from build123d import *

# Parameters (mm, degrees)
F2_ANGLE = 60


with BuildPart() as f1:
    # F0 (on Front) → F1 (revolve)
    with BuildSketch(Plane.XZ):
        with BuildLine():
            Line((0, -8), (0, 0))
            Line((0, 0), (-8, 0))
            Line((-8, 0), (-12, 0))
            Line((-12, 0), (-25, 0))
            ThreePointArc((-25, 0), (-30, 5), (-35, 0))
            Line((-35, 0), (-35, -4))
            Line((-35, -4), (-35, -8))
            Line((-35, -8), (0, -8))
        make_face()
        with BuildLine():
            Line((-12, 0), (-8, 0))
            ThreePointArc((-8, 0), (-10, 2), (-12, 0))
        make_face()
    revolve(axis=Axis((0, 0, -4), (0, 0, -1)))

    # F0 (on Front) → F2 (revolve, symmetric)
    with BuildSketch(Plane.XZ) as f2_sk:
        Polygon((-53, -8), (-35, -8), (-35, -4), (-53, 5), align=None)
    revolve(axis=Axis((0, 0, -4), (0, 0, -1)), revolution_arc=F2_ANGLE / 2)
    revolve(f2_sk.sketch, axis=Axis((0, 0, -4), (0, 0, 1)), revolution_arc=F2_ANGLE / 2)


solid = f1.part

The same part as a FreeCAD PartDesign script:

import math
import FreeCAD as App
import Part
import Sketcher
Q = App.Units.Quantity


def add_polygon(sketch, points):
    """Adds a closed chain of lines whose ends are joined by coincident constraints."""
    first, n = sketch.GeometryCount, len(points)
    for a, b in zip(points, points[1:] + points[:1]):
        sketch.addGeometry(Part.LineSegment(App.Vector(*a, 0), App.Vector(*b, 0)), False)
    for i in range(n):
        sketch.addConstraint(Sketcher.Constraint("Coincident", first + i, 2, first + (i + 1) % n, 1))

doc = App.newDocument("Part")
body = doc.addObject("PartDesign::Body", "Body")

# Sketch on XZ plane
sketch1 = doc.addObject("Sketcher::SketchObject", "Sketch")
body.addObject(sketch1)
sketch1.AttachmentSupport = (doc.XZ_Plane, [""])
sketch1.MapMode = "FlatFace"
sketch1.addGeometry(Part.LineSegment(App.Vector(0, -8, 0), App.Vector(0, 0, 0)), False)
sketch1.addGeometry(Part.LineSegment(App.Vector(0, 0, 0), App.Vector(-8, 0, 0)), False)
sketch1.addGeometry(Part.ArcOfCircle(Part.Circle(App.Vector(-10, 0, 0), App.Vector(0, 0, 1), 2), math.radians(0), math.radians(180)), False)
sketch1.addGeometry(Part.LineSegment(App.Vector(-12, 0, 0), App.Vector(-25, 0, 0)), False)
sketch1.addGeometry(Part.ArcOfCircle(Part.Circle(App.Vector(-30, 0, 0), App.Vector(0, 0, 1), 5), math.radians(0), math.radians(180)), False)
sketch1.addGeometry(Part.LineSegment(App.Vector(-35, 0, 0), App.Vector(-35, -8, 0)), False)
sketch1.addGeometry(Part.LineSegment(App.Vector(-35, -8, 0), App.Vector(0, -8, 0)), False)
sketch1.addConstraint(Sketcher.Constraint("Coincident", 0, 2, 1, 1))
sketch1.addConstraint(Sketcher.Constraint("Coincident", 1, 2, 2, 1))
sketch1.addConstraint(Sketcher.Constraint("Coincident", 2, 2, 3, 1))
sketch1.addConstraint(Sketcher.Constraint("Coincident", 3, 2, 4, 1))
sketch1.addConstraint(Sketcher.Constraint("Tangent", 4, 2, 5, 1))
sketch1.addConstraint(Sketcher.Constraint("Coincident", 5, 2, 6, 1))
sketch1.addConstraint(Sketcher.Constraint("Coincident", 6, 2, 0, 1))
sketch1.addConstraint(Sketcher.Constraint("Vertical", 0))
sketch1.addConstraint(Sketcher.Constraint("Horizontal", 1))
sketch1.addConstraint(Sketcher.Constraint("Horizontal", 3))
sketch1.addConstraint(Sketcher.Constraint("Vertical", 5))
sketch1.addConstraint(Sketcher.Constraint("Horizontal", 6))
sketch1.addConstraint(Sketcher.Constraint("Coincident", 0, 2, -1, 1))
sketch1.addConstraint(Sketcher.Constraint("PointOnObject", 2, 3, -1))
sketch1.addConstraint(Sketcher.Constraint("PointOnObject", 4, 3, -1))
sketch1.addConstraint(Sketcher.Constraint("PointOnObject", 2, 2, -1))
sketch1.addConstraint(Sketcher.Constraint("Equal", 1, 0))
sketch1.addConstraint(Sketcher.Constraint("Radius", 2, Q("2 mm")))
sketch1.addConstraint(Sketcher.Constraint("Radius", 4, Q("5 mm")))
sketch1.addConstraint(Sketcher.Constraint("DistanceX", 1, 2, 1, 1, Q("8 mm")))
sketch1.addConstraint(Sketcher.Constraint("DistanceX", 3, 2, 3, 1, Q("13 mm")))
revolution = doc.addObject("PartDesign::Revolution", "Revolution")
body.addObject(revolution)
revolution.Profile = sketch1
revolution.ReferenceAxis = (sketch1, ["V_Axis"])
revolution.Angle = 360

# Sketch on XZ plane
sketch2 = doc.addObject("Sketcher::SketchObject", "Sketch001")
body.addObject(sketch2)
sketch2.AttachmentSupport = (doc.XZ_Plane, [""])
sketch2.MapMode = "FlatFace"
add_polygon(sketch2, [(-53, -8), (-35, -8), (-35, -4), (-53, 5)])  # lines 0-3
sketch2.addConstraint(Sketcher.Constraint("Horizontal", 0))
sketch2.addConstraint(Sketcher.Constraint("Vertical", 1))
sketch2.addConstraint(Sketcher.Constraint("Vertical", 3))
sketch2.addConstraint(Sketcher.Constraint("DistanceX", 0, 1, 0, 2, Q("18 mm")))
sketch2.addConstraint(Sketcher.Constraint("DistanceY", 1, 1, 1, 2, Q("4 mm")))
sketch2.addConstraint(Sketcher.Constraint("DistanceY", 3, 2, 3, 1, Q("13 mm")))
sketch2.addConstraint(Sketcher.Constraint("DistanceX", 0, 2, -1, 1, Q("35 mm")))
sketch2.addConstraint(Sketcher.Constraint("DistanceY", 0, 2, -1, 1, Q("8 mm")))
revolution2 = doc.addObject("PartDesign::Revolution", "Revolution001")
body.addObject(revolution2)
revolution2.Profile = sketch2
revolution2.ReferenceAxis = (sketch2, ["V_Axis"])
revolution2.Angle = 30
revolution2.Reversed = True

# Sketch on XZ plane
sketch3 = doc.addObject("Sketcher::SketchObject", "Sketch002")
body.addObject(sketch3)
sketch3.AttachmentSupport = (doc.XZ_Plane, [""])
sketch3.MapMode = "FlatFace"
add_polygon(sketch3, [(-53, -8), (-35, -8), (-35, -4), (-53, 5)])  # lines 0-3
sketch3.addConstraint(Sketcher.Constraint("Horizontal", 0))
sketch3.addConstraint(Sketcher.Constraint("Vertical", 1))
sketch3.addConstraint(Sketcher.Constraint("Vertical", 3))
sketch3.addConstraint(Sketcher.Constraint("DistanceX", 0, 1, 0, 2, Q("18 mm")))
sketch3.addConstraint(Sketcher.Constraint("DistanceY", 1, 1, 1, 2, Q("4 mm")))
sketch3.addConstraint(Sketcher.Constraint("DistanceY", 3, 2, 3, 1, Q("13 mm")))
sketch3.addConstraint(Sketcher.Constraint("DistanceX", 0, 2, -1, 1, Q("35 mm")))
sketch3.addConstraint(Sketcher.Constraint("DistanceY", 0, 2, -1, 1, Q("8 mm")))
revolution3 = doc.addObject("PartDesign::Revolution", "Revolution002")
body.addObject(revolution3)
revolution3.Profile = sketch3
revolution3.ReferenceAxis = (sketch3, ["V_Axis"])
revolution3.Angle = 30

doc.recompute()
